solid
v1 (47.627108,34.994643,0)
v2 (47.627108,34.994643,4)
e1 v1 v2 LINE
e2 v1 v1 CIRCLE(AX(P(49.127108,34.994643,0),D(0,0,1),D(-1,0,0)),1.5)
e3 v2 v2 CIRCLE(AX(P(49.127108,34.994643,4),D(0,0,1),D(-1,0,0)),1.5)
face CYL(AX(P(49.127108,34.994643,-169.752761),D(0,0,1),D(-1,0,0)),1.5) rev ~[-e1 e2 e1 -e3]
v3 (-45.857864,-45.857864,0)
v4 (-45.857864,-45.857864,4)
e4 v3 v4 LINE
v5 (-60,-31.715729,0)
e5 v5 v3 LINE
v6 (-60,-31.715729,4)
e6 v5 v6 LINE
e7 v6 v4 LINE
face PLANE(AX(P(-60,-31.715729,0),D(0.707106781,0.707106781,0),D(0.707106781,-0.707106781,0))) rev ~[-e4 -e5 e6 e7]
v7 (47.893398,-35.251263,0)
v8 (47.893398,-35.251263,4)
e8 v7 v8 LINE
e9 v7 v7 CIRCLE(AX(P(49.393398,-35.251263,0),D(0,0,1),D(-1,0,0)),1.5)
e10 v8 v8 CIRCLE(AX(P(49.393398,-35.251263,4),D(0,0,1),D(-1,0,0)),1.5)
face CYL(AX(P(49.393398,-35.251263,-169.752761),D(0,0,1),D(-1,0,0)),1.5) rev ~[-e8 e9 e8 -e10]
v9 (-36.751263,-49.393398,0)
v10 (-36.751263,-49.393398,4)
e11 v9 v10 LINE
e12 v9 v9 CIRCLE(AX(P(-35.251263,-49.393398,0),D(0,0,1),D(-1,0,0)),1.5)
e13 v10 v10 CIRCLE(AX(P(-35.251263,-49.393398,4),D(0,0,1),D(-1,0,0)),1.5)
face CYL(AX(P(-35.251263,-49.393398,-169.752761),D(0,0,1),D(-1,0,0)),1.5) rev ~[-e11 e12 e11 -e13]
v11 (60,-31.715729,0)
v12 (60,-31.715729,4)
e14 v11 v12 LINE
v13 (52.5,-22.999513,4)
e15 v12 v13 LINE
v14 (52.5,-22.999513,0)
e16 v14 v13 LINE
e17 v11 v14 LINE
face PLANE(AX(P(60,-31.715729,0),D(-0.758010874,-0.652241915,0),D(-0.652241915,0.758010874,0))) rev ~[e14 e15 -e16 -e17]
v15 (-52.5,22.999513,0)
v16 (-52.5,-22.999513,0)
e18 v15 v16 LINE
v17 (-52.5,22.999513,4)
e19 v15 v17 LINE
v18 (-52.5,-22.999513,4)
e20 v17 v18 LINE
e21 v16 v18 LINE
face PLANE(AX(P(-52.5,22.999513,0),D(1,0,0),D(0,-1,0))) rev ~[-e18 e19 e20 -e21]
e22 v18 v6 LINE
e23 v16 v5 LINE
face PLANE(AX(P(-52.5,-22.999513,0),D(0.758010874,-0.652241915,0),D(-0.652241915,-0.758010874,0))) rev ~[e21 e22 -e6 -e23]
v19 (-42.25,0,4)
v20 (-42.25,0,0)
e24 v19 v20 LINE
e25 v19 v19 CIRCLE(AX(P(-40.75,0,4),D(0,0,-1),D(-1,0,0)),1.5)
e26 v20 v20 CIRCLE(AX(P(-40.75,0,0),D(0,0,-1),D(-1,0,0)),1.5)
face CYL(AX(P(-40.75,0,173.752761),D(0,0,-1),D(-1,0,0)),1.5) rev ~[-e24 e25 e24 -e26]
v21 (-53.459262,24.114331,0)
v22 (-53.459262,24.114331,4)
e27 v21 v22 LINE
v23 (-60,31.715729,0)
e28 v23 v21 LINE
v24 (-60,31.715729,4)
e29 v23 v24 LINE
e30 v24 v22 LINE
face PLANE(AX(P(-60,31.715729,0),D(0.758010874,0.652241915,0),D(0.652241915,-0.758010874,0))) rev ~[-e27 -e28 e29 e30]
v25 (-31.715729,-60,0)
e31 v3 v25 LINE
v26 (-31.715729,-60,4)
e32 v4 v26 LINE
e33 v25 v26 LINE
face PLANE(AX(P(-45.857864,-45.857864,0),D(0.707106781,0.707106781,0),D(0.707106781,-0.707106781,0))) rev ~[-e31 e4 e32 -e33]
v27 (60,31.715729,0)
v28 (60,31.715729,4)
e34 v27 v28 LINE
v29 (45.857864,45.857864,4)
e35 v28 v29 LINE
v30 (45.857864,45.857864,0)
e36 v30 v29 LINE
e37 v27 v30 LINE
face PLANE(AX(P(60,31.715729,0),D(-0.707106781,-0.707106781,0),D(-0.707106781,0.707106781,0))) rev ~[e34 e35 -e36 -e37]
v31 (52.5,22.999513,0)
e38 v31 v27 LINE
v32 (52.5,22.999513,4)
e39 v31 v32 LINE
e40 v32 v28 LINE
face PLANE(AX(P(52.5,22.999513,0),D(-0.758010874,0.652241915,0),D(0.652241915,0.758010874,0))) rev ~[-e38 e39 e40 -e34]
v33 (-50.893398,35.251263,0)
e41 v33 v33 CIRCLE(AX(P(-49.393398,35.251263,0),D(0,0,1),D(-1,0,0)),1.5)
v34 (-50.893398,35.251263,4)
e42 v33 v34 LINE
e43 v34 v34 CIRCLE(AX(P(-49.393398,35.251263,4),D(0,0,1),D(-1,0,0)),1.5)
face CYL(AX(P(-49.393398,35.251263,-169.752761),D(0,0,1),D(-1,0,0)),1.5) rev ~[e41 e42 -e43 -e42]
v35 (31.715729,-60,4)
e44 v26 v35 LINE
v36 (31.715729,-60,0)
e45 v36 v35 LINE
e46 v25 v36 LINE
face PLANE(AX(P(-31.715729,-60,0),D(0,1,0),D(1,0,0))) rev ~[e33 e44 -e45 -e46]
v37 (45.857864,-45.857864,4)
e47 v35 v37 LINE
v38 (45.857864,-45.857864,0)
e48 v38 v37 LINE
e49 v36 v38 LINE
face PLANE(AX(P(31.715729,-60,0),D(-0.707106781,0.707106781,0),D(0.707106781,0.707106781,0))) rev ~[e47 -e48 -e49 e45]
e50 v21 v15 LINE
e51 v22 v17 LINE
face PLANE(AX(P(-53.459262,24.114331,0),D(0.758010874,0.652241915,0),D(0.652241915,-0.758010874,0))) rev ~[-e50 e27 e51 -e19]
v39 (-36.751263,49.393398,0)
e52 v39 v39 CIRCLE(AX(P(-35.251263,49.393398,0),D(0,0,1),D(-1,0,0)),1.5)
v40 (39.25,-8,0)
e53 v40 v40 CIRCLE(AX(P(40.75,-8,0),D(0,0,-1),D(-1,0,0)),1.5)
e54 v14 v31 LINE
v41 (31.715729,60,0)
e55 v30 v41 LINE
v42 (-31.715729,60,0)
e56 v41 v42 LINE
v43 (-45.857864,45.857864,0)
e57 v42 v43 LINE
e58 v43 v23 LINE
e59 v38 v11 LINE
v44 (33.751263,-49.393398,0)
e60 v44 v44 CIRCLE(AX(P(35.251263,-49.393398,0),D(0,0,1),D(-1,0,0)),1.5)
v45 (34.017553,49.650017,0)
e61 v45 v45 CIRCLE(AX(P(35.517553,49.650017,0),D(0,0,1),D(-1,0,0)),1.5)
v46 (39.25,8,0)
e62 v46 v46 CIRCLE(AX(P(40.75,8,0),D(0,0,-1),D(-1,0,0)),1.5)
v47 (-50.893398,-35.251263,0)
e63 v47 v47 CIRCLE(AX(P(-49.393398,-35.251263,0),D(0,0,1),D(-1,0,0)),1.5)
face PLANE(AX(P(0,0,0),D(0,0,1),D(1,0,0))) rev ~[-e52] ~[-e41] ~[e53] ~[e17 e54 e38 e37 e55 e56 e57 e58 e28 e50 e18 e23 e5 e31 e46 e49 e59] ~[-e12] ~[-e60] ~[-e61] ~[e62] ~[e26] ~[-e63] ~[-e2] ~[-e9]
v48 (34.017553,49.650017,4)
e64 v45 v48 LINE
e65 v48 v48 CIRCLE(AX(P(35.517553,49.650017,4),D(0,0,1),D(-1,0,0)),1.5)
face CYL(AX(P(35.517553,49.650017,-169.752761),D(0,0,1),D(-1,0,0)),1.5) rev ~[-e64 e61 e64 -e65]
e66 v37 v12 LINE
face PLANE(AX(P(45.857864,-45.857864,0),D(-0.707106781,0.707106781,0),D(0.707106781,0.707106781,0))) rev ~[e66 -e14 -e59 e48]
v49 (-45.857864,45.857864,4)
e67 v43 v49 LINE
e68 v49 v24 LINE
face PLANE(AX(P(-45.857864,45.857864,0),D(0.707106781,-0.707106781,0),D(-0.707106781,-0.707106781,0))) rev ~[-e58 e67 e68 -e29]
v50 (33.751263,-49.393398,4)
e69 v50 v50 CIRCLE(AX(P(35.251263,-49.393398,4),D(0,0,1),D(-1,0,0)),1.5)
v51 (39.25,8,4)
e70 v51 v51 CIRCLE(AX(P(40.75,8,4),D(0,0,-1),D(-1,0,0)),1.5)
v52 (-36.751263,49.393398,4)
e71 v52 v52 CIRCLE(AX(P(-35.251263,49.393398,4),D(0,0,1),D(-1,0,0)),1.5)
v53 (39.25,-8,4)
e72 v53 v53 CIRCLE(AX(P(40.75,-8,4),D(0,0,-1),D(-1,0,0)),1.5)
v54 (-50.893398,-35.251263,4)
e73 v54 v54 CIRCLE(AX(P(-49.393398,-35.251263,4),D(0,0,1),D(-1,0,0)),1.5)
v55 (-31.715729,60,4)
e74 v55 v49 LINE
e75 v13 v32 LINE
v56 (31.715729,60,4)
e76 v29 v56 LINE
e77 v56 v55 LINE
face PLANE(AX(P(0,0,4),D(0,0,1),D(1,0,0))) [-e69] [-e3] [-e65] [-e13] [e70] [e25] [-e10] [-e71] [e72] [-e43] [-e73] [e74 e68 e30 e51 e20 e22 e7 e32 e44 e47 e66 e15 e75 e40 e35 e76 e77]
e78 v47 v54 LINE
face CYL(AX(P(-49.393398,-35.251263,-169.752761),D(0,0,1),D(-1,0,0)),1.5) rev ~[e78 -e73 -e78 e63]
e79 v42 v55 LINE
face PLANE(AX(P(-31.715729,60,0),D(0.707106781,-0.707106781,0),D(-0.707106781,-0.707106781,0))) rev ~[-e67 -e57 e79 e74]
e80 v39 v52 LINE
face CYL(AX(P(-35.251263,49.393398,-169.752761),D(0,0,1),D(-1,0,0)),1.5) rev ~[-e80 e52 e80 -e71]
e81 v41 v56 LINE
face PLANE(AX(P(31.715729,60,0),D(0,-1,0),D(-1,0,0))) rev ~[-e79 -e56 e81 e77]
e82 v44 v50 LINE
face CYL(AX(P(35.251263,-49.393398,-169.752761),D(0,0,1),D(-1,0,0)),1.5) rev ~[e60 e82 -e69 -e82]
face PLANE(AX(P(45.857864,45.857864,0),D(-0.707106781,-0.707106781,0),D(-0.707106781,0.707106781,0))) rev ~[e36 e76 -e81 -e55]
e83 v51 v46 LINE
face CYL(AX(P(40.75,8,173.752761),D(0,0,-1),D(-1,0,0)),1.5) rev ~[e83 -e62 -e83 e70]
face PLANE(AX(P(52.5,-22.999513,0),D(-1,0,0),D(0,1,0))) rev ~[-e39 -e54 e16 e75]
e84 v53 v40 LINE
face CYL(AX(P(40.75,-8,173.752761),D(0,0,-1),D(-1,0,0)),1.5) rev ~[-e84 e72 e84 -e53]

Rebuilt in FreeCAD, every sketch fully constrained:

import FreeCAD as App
import Part
import Sketcher

V = App.Vector
Q = App.Units.Quantity


def add_polygon(sketch, points):
    """Adds a closed chain of lines whose ends are joined by coincident constraints."""
    first, n = sketch.GeometryCount, len(points)
    for a, b in zip(points, points[1:] + points[:1]):
        sketch.addGeometry(Part.LineSegment(App.Vector(*a, 0), App.Vector(*b, 0)), False)
    for i in range(n):
        sketch.addConstraint(Sketcher.Constraint("Coincident", first + i, 2, first + (i + 1) % n, 1))

doc = App.newDocument("Part")
body = doc.addObject("PartDesign::Body", "Body")

# Sketch on XY plane
sketch1 = doc.addObject("Sketcher::SketchObject", "Sketch")
body.addObject(sketch1)
sketch1.AttachmentSupport = (doc.XY_Plane, [""])
sketch1.MapMode = "FlatFace"
add_polygon(sketch1, [(31.7, 60), (-31.7, 60), (-45.9, 45.9), (-60, 31.7), (-53.5, 24.1), (-52.5, 23), (-52.5, -23), (-60, -31.7), (-45.9, -45.9), (-31.7, -60), (31.7, -60), (45.9, -45.9), (60, -31.7), (52.5, -23), (52.5, 23), (60, 31.7), (45.9, 45.9)])  # lines 0-16
sketch1.addConstraint(Sketcher.Constraint("Horizontal", 0))
sketch1.addConstraint(Sketcher.Constraint("Vertical", 5))
sketch1.addConstraint(Sketcher.Constraint("Horizontal", 9))
sketch1.addConstraint(Sketcher.Constraint("Vertical", 13))
sketch1.addConstraint(Sketcher.Constraint("Symmetric", 0, 2, 9, 2, -1, 1))
sketch1.addConstraint(Sketcher.Constraint("Symmetric", 1, 2, 10, 2, -1, 1))
sketch1.addConstraint(Sketcher.Constraint("Symmetric", 2, 2, 11, 2, -1, 1))
sketch1.addConstraint(Sketcher.Constraint("Symmetric", 4, 2, 12, 2, -1, 1))
sketch1.addConstraint(Sketcher.Constraint("Symmetric", 6, 2, 14, 2, -1, 1))
sketch1.addConstraint(Sketcher.Constraint("Symmetric", 7, 2, 15, 2, -1, 1))
sketch1.addConstraint(Sketcher.Constraint("Symmetric", 7, 2, 10, 2, -2))
sketch1.addConstraint(Sketcher.Constraint("Symmetric", 6, 2, 11, 2, -2))
sketch1.addConstraint(Sketcher.Constraint("Parallel", 1, 2))
sketch1.addConstraint(Sketcher.Constraint("Parallel", 3, 4))
sketch1.addConstraint(Sketcher.Constraint("Perpendicular", 2, 7))
sketch1.addConstraint(Sketcher.Constraint("Parallel", 7, 8))
sketch1.addConstraint(Sketcher.Constraint("Parallel", 6, 14))
sketch1.addConstraint(Sketcher.Constraint("Parallel", 15, 16))
sketch1.addConstraint(Sketcher.Constraint("Horizontal", 5, 2, 12, 2))
sketch1.addConstraint(Sketcher.Constraint("Equal", 1, 2))
sketch1.addConstraint(Sketcher.Constraint("Distance", 1, Q("20 mm")))
sketch1.addConstraint(Sketcher.Constraint("DistanceY", -1, 1, 0, 2, Q("60 mm")))
sketch1.addConstraint(Sketcher.Constraint("DistanceX", 2, 2, -1, 1, Q("60 mm")))
sketch1.addConstraint(Sketcher.Constraint("DistanceX", 4, 2, -1, 1, Q("52.5 mm")))
sketch1.addConstraint(Sketcher.Constraint("Distance", 6, Q("11.498801 mm")))
sketch1.addConstraint(Sketcher.Constraint("DistanceY", -1, 1, 3, 2, Q("24.114331 mm")))
pad1 = doc.addObject("PartDesign::Pad", "Pad")
body.addObject(pad1)
pad1.Profile = sketch1
pad1.Length = 4

# Sketch on XY plane
sketch2 = doc.addObject("Sketcher::SketchObject", "Sketch001")
body.addObject(sketch2)
sketch2.AttachmentSupport = (doc.XY_Plane, [""])
sketch2.MapMode = "FlatFace"
sketch2.AttachmentOffset = App.Placement(V(0, 0, 4), App.Rotation())
sketch2.addGeometry(Part.Circle(V(-40.8, 0, 0), V(0, 0, 1), 1.5), False)
sketch2.addGeometry(Part.Circle(V(40.8, -8, 0), V(0, 0, 1), 1.5), False)
sketch2.addGeometry(Part.Circle(V(40.8, 8, 0), V(0, 0, 1), 1.5), False)
sketch2.addConstraint(Sketcher.Constraint("Equal", 0, 1))
sketch2.addConstraint(Sketcher.Constraint("Equal", 1, 2))
sketch2.addConstraint(Sketcher.Constraint("Symmetric", 1, 3, 2, 3, -1))
sketch2.addConstraint(Sketcher.Constraint("PointOnObject", 0, 3, -1))
sketch2.addConstraint(Sketcher.Constraint("Diameter", 0, Q("3 mm")))
sketch2.addConstraint(Sketcher.Constraint("DistanceY", 1, 3, -1, 1, Q("8 mm")))
sketch2.addConstraint(Sketcher.Constraint("DistanceX", 0, 3, 1, 3, Q("81.5 mm")))
sketch2.addConstraint(Sketcher.Constraint("DistanceX", 0, 3, -1, 1, Q("40.75 mm")))
doc.recompute()
hole = doc.addObject("PartDesign::Hole", "Hole")
body.addObject(hole)
hole.Profile = sketch2
hole.ThreadType = "None"
hole.Diameter = 3
hole.DepthType = "ThroughAll"

# Sketch on XY plane
sketch3 = doc.addObject("Sketcher::SketchObject", "Sketch002")
body.addObject(sketch3)
sketch3.AttachmentSupport = (doc.XY_Plane, [""])
sketch3.MapMode = "FlatFace"
sketch3.addGeometry(Part.Circle(V(-49.4, 35.3, 0), V(0, 0, 1), 1.5), False)
sketch3.addGeometry(Part.Circle(V(-35.3, 49.4, 0), V(0, 0, 1), 1.5), False)
sketch3.addGeometry(Part.Circle(V(35.5, 49.7, 0), V(0, 0, 1), 1.5), False)
sketch3.addGeometry(Part.Circle(V(49.1, 35, 0), V(0, 0, 1), 1.5), False)
sketch3.addGeometry(Part.Circle(V(49.4, -35.3, 0), V(0, 0, 1), 1.5), False)
sketch3.addGeometry(Part.Circle(V(35.3, -49.4, 0), V(0, 0, 1), 1.5), False)
sketch3.addGeometry(Part.Circle(V(-35.3, -49.4, 0), V(0, 0, 1), 1.5), False)
sketch3.addGeometry(Part.Circle(V(-49.4, -35.3, 0), V(0, 0, 1), 1.5), False)
sketch3.addConstraint(Sketcher.Constraint("Equal", 0, 1))
sketch3.addConstraint(Sketcher.Constraint("Equal", 1, 2))
sketch3.addConstraint(Sketcher.Constraint("Equal", 2, 3))
sketch3.addConstraint(Sketcher.Constraint("Equal", 3, 4))
sketch3.addConstraint(Sketcher.Constraint("Equal", 4, 5))
sketch3.addConstraint(Sketcher.Constraint("Equal", 5, 6))
sketch3.addConstraint(Sketcher.Constraint("Equal", 6, 7))
sketch3.addConstraint(Sketcher.Constraint("Symmetric", 0, 3, 4, 3, -1, 1))
sketch3.addConstraint(Sketcher.Constraint("Symmetric", 1, 3, 5, 3, -1, 1))
sketch3.addConstraint(Sketcher.Constraint("Symmetric", 5, 3, 6, 3, -2))
sketch3.addConstraint(Sketcher.Constraint("Symmetric", 4, 3, 7, 3, -2))
sketch3.addConstraint(Sketcher.Constraint("Diameter", 0, Q("3 mm")))
sketch3.addConstraint(Sketcher.Constraint("DistanceX", 0, 3, -1, 1, Q("49.393398 mm")))
sketch3.addConstraint(Sketcher.Constraint("DistanceY", -1, 1, 1, 3, Q("49.393398 mm")))
sketch3.addConstraint(Sketcher.Constraint("DistanceX", -1, 1, 3, 3, Q("49.127108 mm")))
sketch3.addConstraint(Sketcher.Constraint("DistanceY", 1, 3, 2, 3, Q("0.256619 mm")))
sketch3.addConstraint(Sketcher.Constraint("DistanceX", 0, 3, 2, 3, Q("84.910951 mm")))
sketch3.addConstraint(Sketcher.Constraint("DistanceX", 1, 3, 3, 3, Q("84.378371 mm")))
sketch3.addConstraint(Sketcher.Constraint("DistanceY", 3, 3, 0, 3, Q("0.256619 mm")))
sketch3.addConstraint(Sketcher.Constraint("DistanceY", 4, 3, 2, 3, Q("84.90128 mm")))
doc.recompute()
hole2 = doc.addObject("PartDesign::Hole", "Hole001")
body.addObject(hole2)
hole2.Profile = sketch3
hole2.ThreadType = "None"
hole2.Diameter = 3
hole2.DepthType = "ThroughAll"
hole2.Reversed = True

doc.recompute()
